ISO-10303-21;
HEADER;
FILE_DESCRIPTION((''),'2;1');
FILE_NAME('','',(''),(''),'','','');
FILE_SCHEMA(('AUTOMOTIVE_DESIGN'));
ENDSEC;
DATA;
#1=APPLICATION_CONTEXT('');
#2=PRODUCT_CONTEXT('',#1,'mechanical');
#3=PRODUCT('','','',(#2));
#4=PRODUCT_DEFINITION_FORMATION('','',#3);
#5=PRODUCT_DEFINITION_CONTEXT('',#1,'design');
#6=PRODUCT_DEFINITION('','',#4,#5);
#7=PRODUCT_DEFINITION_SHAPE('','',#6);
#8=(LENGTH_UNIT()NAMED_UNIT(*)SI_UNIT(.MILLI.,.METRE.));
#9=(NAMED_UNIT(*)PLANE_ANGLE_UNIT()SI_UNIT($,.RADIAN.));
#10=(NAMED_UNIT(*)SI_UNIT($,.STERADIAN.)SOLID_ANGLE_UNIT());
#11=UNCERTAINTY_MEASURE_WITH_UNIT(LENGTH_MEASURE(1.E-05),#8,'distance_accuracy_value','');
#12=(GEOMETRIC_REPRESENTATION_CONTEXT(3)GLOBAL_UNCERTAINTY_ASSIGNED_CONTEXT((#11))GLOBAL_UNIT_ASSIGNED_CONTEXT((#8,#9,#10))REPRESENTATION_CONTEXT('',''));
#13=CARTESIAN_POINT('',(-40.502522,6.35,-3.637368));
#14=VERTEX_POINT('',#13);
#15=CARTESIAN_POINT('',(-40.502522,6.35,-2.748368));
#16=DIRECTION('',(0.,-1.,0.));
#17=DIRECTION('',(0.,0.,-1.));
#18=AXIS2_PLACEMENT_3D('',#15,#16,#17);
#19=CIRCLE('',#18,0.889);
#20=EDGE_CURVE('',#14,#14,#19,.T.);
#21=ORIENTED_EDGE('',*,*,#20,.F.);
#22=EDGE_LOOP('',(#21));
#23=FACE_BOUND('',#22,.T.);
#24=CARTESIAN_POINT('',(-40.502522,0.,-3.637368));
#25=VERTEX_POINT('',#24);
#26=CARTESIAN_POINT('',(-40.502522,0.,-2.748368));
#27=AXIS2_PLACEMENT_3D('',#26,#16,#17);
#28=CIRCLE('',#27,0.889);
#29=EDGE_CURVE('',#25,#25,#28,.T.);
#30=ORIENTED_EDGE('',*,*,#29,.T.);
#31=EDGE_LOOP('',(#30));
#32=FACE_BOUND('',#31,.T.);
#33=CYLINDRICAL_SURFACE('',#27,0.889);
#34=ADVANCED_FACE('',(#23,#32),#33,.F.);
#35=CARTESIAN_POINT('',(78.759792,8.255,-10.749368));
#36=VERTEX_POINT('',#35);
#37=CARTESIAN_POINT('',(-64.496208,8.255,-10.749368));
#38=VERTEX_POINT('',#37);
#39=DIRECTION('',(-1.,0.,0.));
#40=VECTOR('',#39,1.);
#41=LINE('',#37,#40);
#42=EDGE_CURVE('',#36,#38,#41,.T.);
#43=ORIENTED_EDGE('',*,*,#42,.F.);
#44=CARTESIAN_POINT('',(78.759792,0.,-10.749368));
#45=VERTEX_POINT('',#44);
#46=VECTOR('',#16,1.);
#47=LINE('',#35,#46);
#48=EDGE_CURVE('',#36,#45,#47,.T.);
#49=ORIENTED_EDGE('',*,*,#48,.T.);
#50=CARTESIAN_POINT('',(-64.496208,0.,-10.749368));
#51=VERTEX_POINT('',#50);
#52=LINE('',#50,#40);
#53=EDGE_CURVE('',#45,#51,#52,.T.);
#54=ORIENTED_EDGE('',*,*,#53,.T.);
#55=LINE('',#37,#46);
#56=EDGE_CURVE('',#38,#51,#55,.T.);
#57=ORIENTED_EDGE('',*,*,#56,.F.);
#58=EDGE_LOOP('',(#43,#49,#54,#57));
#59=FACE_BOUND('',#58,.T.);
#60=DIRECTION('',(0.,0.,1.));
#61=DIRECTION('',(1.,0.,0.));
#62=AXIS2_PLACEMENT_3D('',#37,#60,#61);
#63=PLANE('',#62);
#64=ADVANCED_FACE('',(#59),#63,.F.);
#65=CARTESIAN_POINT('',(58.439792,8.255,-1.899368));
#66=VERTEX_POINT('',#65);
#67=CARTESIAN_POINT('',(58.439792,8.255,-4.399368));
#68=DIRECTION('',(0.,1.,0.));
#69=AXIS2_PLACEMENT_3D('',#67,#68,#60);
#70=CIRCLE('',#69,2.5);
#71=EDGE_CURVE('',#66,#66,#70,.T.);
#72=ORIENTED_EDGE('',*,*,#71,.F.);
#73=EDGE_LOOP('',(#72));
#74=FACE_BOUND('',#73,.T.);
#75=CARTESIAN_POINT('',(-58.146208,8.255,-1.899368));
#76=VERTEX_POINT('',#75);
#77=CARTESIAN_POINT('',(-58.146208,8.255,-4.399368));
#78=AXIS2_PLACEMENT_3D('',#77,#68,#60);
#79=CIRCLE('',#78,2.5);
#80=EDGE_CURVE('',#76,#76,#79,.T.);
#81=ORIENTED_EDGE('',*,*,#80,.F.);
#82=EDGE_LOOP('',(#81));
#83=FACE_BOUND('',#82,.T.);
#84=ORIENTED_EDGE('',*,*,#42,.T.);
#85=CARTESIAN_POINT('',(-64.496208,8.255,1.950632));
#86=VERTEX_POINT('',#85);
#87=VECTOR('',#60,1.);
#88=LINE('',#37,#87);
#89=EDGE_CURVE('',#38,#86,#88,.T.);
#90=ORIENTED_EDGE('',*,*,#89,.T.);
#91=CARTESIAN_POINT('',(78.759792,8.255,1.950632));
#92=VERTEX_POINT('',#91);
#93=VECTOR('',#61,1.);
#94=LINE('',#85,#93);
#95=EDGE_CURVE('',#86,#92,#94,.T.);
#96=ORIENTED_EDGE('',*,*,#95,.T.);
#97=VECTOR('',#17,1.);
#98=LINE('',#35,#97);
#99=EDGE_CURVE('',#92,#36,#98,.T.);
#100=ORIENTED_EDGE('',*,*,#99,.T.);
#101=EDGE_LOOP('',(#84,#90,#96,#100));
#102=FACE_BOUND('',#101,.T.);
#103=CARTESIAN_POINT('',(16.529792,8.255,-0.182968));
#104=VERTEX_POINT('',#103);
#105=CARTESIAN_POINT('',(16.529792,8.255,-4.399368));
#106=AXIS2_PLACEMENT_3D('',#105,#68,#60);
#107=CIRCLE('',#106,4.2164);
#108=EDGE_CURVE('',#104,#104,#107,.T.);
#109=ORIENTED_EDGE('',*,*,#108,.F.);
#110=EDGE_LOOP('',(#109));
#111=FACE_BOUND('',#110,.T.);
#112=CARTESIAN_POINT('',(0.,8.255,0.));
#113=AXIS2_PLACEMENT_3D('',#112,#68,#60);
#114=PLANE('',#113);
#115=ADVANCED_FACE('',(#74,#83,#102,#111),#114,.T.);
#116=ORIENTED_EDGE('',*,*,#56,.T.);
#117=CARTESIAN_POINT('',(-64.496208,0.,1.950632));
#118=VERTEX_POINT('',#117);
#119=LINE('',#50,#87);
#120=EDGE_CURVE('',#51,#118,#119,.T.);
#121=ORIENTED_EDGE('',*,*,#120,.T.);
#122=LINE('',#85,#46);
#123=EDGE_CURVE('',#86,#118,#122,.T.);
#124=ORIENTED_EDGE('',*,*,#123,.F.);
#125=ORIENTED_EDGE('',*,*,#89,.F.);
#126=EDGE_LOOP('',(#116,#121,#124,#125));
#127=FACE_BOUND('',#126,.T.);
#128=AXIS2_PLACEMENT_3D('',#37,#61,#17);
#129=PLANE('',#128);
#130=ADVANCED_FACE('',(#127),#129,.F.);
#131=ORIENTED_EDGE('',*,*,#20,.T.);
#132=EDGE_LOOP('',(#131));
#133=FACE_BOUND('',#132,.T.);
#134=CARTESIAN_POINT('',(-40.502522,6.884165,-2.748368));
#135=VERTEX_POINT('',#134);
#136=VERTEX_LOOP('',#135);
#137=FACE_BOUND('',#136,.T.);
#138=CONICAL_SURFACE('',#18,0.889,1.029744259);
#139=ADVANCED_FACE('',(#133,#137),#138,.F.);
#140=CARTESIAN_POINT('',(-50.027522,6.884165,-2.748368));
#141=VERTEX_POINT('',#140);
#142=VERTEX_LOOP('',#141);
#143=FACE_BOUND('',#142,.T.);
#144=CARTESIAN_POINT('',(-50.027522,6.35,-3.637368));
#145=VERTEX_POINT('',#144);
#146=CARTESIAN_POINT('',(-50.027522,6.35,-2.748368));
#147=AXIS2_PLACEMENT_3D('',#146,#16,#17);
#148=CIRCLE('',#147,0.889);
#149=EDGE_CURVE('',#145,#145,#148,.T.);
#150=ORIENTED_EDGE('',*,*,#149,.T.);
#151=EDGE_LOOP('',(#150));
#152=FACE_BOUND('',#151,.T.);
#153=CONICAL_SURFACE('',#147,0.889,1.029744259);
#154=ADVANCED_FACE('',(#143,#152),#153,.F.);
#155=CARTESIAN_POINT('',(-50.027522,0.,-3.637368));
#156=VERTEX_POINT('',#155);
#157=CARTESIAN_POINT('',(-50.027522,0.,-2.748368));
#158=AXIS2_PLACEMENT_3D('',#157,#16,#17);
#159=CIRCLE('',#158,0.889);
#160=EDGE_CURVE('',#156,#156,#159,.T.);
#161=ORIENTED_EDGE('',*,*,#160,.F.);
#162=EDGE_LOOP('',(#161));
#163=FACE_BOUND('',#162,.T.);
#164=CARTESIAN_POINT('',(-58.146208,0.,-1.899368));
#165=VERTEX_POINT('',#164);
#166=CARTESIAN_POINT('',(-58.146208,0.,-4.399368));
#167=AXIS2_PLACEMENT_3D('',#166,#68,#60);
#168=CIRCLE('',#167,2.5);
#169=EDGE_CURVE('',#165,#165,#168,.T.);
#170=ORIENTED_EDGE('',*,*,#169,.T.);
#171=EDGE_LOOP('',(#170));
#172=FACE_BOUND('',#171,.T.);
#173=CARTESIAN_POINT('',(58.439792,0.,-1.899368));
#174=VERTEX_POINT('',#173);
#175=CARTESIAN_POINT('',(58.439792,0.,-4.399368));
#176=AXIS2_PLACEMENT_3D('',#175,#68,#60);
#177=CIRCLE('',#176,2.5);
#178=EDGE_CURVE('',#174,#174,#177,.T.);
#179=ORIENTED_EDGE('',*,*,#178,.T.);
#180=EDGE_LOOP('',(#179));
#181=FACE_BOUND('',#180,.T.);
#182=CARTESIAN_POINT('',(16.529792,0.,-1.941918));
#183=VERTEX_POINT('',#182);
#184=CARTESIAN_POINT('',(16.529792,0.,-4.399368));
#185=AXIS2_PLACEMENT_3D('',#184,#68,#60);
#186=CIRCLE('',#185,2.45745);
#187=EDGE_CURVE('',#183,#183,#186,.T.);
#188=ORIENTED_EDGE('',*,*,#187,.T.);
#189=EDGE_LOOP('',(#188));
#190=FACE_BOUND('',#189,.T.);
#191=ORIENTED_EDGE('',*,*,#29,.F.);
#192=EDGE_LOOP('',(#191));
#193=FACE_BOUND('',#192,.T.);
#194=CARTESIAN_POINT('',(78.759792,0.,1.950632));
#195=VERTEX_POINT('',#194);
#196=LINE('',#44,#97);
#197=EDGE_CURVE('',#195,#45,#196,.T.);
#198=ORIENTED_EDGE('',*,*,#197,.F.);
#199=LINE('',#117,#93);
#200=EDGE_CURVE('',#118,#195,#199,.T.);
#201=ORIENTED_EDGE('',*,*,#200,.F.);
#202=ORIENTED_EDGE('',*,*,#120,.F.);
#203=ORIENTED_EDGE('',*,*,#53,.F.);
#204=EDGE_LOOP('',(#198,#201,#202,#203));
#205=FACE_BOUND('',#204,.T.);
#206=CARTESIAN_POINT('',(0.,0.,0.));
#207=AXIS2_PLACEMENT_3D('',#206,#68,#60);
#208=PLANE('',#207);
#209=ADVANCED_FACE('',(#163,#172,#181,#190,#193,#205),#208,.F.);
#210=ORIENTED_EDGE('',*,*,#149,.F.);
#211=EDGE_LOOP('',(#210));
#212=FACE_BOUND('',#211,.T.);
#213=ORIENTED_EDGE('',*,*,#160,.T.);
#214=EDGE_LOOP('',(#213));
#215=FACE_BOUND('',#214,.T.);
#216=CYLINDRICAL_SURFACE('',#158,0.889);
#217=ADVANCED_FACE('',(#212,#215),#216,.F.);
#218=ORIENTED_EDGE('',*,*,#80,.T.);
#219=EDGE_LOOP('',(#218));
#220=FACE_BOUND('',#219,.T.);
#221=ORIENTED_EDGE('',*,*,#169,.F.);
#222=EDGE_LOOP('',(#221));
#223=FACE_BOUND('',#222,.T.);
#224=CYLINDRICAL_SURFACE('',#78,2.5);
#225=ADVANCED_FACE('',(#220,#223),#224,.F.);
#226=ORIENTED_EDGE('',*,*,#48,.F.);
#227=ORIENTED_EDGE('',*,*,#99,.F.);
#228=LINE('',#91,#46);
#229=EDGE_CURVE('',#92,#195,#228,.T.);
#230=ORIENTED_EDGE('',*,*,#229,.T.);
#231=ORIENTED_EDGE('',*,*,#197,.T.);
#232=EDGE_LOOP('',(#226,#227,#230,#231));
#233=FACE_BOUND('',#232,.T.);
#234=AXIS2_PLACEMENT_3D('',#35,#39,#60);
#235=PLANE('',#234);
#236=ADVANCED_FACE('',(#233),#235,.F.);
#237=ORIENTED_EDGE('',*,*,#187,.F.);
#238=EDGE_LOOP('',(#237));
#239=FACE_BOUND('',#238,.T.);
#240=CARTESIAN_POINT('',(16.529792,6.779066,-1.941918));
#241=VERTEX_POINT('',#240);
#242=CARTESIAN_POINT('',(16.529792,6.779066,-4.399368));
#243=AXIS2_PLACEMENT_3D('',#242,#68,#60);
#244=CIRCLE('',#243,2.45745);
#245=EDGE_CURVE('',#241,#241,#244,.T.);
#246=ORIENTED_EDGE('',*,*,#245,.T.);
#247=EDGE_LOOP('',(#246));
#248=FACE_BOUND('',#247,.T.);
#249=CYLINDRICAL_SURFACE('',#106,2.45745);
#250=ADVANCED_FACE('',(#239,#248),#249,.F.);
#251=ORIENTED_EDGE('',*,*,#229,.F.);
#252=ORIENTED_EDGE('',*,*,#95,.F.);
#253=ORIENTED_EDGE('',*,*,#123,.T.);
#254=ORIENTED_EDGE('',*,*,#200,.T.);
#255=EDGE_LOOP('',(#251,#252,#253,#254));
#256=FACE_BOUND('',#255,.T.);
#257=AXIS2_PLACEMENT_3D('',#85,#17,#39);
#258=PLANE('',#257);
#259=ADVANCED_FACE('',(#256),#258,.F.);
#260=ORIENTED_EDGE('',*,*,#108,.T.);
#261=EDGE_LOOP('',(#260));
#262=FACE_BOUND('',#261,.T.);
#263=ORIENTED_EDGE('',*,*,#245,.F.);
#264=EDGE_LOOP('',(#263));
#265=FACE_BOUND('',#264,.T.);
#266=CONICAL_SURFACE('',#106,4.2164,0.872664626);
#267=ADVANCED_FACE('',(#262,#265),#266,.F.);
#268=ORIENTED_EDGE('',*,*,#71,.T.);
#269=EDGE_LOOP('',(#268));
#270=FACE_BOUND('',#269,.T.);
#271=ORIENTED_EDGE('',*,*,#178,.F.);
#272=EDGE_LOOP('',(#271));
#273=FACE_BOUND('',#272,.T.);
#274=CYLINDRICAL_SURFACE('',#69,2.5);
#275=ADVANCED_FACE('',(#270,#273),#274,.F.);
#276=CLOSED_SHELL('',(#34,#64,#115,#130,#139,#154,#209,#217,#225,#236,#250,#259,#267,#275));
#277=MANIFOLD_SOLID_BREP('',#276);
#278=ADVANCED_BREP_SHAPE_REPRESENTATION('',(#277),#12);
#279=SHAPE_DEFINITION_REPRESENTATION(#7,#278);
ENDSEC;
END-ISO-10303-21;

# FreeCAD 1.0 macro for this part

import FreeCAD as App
import Part
import Sketcher
from FreeCAD import Vector
Q = App.Units.Quantity

doc = App.newDocument("Part")
params = doc.addObject("Spreadsheet::Sheet", "Params")
for row, (alias, value) in enumerate([
    ("sketch1_height", "0.5 in"),
    ("sketch1_width", "5.64 in"),
    ("pad1_length", "0.325 in"),
    ("hole_diameter", "0.1935 in"),
    ("hole_csink_diameter", "0.332 in"),
    ("sketch3_diameter", "0.07 in"),
    ("hole2_diameter", "0.07 in"),
    ("hole2_depth", "0.25 in"),
    ("hole3_diameter", "5 mm"),
], start=1):
    params.set(f"A{row}", alias)
    params.set(f"B{row}", "=" + value)
    params.setAlias(f"B{row}", alias)

body = doc.addObject("PartDesign::Body", "Body")

sketch1 = body.newObject("Sketcher::SketchObject", "Sketch")
sketch1.AttachmentSupport = (doc.getObject("XZ_Plane"), [""])
sketch1.MapMode = "FlatFace"
sketch1.addGeometry([
    Part.LineSegment(Vector(-64, -11, 0), Vector(-64, 2, 0)),
    Part.LineSegment(Vector(-64, 2, 0), Vector(79, 2, 0)),
    Part.LineSegment(Vector(79, 2, 0), Vector(79, -11, 0)),
    Part.LineSegment(Vector(79, -11, 0), Vector(-64, -11, 0)),
], False)
sketch1.addConstraint([
    Sketcher.Constraint("Coincident", 0, 2, 1, 1),
    Sketcher.Constraint("Coincident", 1, 2, 2, 1),
    Sketcher.Constraint("Coincident", 2, 2, 3, 1),
    Sketcher.Constraint("Coincident", 3, 2, 0, 1),
    Sketcher.Constraint("Vertical", 0),
    Sketcher.Constraint("Horizontal", 1),
    Sketcher.Constraint("Vertical", 2),
    Sketcher.Constraint("Horizontal", 3),
    Sketcher.Constraint("DistanceY", 0, 1, 0, 2, Q("0.5 in")),
    Sketcher.Constraint("DistanceX", 1, 1, 1, 2, Q("5.64 in")),
    Sketcher.Constraint("DistanceX", 0, 2, -1, 1, Q("64.496208 mm")),
    Sketcher.Constraint("DistanceY", -1, 1, 0, 2, Q("1.950632 mm")),
])
sketch1.setExpression("Constraints[8]", "Params.sketch1_height")
sketch1.setExpression("Constraints[9]", "Params.sketch1_width")
pad1 = body.newObject("PartDesign::Pad", "Pad")
pad1.Profile = sketch1
pad1.setExpression("Length", "Params.pad1_length")
pad1.Reversed = True

sketch2 = body.newObject("Sketcher::SketchObject", "Sketch001")
sketch2.AttachmentSupport = (doc.getObject("XZ_Plane"), [""])
sketch2.MapMode = "FlatFace"
sketch2.AttachmentOffset = App.Placement(Vector(0, 0, -0.325 * 25.4), App.Rotation())
sketch2.addGeometry(Part.Circle(Vector(16.5, -4.4, 0), Vector(0, 0, 1), 2.5), False)
sketch2.addConstraint([
    Sketcher.Constraint("Diameter", 0, Q("0.1935 in")),
    Sketcher.Constraint("DistanceX", -1, 1, 0, 3, Q("16.529792 mm")),
    Sketcher.Constraint("DistanceY", 0, 3, -1, 1, Q("4.399368 mm")),
])
doc.recompute()
hole = body.newObject("PartDesign::Hole", "Hole")
hole.Profile = sketch2
hole.ThreadType = "None"
hole.setExpression("Diameter", "Params.hole_diameter")
hole.DepthType = "ThroughAll"
hole.HoleCutType = "Countersink"
hole.setExpression("HoleCutDiameter", "Params.hole_csink_diameter")
hole.HoleCutCountersinkAngle = 100
hole.Reversed = True

sketch3 = body.newObject("Sketcher::SketchObject", "Sketch002")
sketch3.AttachmentSupport = (doc.getObject("XZ_Plane"), [""])
sketch3.MapMode = "FlatFace"
sketch3.addGeometry([
    Part.Circle(Vector(-50, -2.7, 0), Vector(0, 0, 1), 0.9),
    Part.Circle(Vector(-40.5, -2.7, 0), Vector(0, 0, 1), 0.9),
], False)
sketch3.addConstraint([
    Sketcher.Constraint("Equal", 0, 1),
    Sketcher.Constraint("Horizontal", 0, 3, 1, 3),
    Sketcher.Constraint("Diameter", 0, Q("0.07 in")),
    Sketcher.Constraint("DistanceX", 0, 3, 1, 3, Q("0.375 in")),
    Sketcher.Constraint("DistanceX", 0, 3, -1, 1, Q("50.027522 mm")),
    Sketcher.Constraint("DistanceY", 0, 3, -1, 1, Q("2.748368 mm")),
])
sketch3.setExpression("Constraints[2]", "Params.sketch3_diameter")
doc.recompute()
hole2 = body.newObject("PartDesign::Hole", "Hole001")
hole2.Profile = sketch3
hole2.ThreadType = "None"
hole2.setExpression("Diameter", "Params.hole2_diameter")
hole2.DepthType = "Dimension"
hole2.setExpression("Depth", "Params.hole2_depth")
hole2.DrillPoint = "Angled"
hole2.DrillPointAngle = 118

sketch4 = body.newObject("Sketcher::SketchObject", "Sketch003")
sketch4.AttachmentSupport = (doc.getObject("XZ_Plane"), [""])
sketch4.MapMode = "FlatFace"
sketch4.AttachmentOffset = App.Placement(Vector(0, 0, -0.325 * 25.4), App.Rotation())
sketch4.addGeometry([
    Part.Circle(Vector(58.4, -4.4, 0), Vector(0, 0, 1), 2.5),
    Part.Circle(Vector(-58.1, -4.4, 0), Vector(0, 0, 1), 2.5),
], False)
sketch4.addConstraint([
    Sketcher.Constraint("Equal", 0, 1),
    Sketcher.Constraint("Horizontal", 0, 3, 1, 3),
    Sketcher.Constraint("Diameter", 0, Q("5 mm")),
    Sketcher.Constraint("DistanceX", 1, 3, 0, 3, Q("4.59 in")),
    Sketcher.Constraint("DistanceX", -1, 1, 0, 3, Q("58.439792 mm")),
    Sketcher.Constraint("DistanceY", 0, 3, -1, 1, Q("4.399368 mm")),
])
doc.recompute()
hole3 = body.newObject("PartDesign::Hole", "Hole002")
hole3.Profile = sketch4
hole3.ThreadType = "None"
hole3.setExpression("Diameter", "Params.hole3_diameter")
hole3.DepthType = "ThroughAll"
hole3.Reversed = True

doc.recompute()
